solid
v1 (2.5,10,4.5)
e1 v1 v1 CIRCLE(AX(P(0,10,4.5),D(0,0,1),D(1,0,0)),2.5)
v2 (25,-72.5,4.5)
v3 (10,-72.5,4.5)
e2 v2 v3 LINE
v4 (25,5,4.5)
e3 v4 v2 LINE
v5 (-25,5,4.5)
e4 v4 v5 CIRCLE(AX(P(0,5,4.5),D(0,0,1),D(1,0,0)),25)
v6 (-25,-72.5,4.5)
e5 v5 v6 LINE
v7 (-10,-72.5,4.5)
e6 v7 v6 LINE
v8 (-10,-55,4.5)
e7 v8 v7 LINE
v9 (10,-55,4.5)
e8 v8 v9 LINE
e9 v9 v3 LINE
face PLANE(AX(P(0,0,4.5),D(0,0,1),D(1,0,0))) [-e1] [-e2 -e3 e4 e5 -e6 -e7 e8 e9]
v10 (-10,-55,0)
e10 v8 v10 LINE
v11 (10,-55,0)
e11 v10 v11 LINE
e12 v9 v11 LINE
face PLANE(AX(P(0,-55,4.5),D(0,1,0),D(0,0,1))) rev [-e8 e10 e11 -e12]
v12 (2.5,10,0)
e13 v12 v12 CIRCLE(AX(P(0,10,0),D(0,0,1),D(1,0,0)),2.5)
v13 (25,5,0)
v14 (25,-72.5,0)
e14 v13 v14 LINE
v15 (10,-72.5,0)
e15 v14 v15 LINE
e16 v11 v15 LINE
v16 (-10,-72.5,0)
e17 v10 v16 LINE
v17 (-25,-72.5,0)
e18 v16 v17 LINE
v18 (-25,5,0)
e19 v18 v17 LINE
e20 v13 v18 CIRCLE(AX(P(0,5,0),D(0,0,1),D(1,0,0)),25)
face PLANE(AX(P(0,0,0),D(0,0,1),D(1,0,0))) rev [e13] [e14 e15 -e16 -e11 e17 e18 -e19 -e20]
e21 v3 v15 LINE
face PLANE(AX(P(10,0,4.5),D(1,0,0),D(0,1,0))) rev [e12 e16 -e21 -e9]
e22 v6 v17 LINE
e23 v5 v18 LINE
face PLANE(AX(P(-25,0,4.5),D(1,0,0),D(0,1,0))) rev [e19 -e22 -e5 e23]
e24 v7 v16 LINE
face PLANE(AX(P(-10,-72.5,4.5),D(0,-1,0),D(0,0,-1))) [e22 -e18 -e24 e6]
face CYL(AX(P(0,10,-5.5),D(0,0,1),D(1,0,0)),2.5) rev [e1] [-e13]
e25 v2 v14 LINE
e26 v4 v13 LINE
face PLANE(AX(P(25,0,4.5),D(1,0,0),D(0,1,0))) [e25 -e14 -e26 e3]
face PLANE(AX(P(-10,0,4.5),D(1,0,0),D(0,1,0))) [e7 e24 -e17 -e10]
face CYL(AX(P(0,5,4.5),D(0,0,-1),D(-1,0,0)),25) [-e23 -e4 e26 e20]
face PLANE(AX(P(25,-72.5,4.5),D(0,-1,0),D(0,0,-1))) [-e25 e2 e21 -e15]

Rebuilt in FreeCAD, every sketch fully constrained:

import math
import FreeCAD as App
import Part
import Sketcher

V = App.Vector
Q = App.Units.Quantity

doc = App.newDocument("Part")
body = doc.addObject("PartDesign::Body", "Body")

# Sketch on XY plane
sketch1 = doc.addObject("Sketcher::SketchObject", "Sketch")
body.addObject(sketch1)
sketch1.AttachmentSupport = (doc.XY_Plane, [""])
sketch1.MapMode = "FlatFace"
sketch1.addGeometry([
    Part.LineSegment(V(-10, -55, 0), V(10, -55, 0)),  # 0
    Part.LineSegment(V(10, -55, 0), V(10, -72, 0)),  # 1
    Part.LineSegment(V(10, -72, 0), V(25, -72, 0)),  # 2
    Part.LineSegment(V(25, -72, 0), V(25, 5, 0)),  # 3
    Part.ArcOfCircle(Part.Circle(V(0, 5, 0), V(0, 0, 1), 25), math.radians(0), math.radians(180)),  # 4
    Part.LineSegment(V(-25, 5, 0), V(-25, -72, 0)),  # 5
    Part.LineSegment(V(-25, -72, 0), V(-10, -72, 0)),  # 6
    Part.LineSegment(V(-10, -72, 0), V(-10, -55, 0)),  # 7
], False)
sketch1.addConstraint([
    Sketcher.Constraint("Coincident", 0, 2, 1, 1),
    Sketcher.Constraint("Coincident", 1, 2, 2, 1),
    Sketcher.Constraint("Coincident", 2, 2, 3, 1),
    Sketcher.Constraint("Tangent", 3, 2, 4, 1),
    Sketcher.Constraint("Tangent", 4, 2, 5, 1),
    Sketcher.Constraint("Coincident", 5, 2, 6, 1),
    Sketcher.Constraint("Coincident", 6, 2, 7, 1),
    Sketcher.Constraint("Coincident", 7, 2, 0, 1),
    Sketcher.Constraint("Horizontal", 0),
    Sketcher.Constraint("Vertical", 1),
    Sketcher.Constraint("Horizontal", 2),
    Sketcher.Constraint("Vertical", 3),
    Sketcher.Constraint("Vertical", 5),
    Sketcher.Constraint("Horizontal", 6),
    Sketcher.Constraint("Vertical", 7),
    Sketcher.Constraint("Symmetric", 2, 2, 5, 2, -2),
    Sketcher.Constraint("Equal", 2, 6),
    Sketcher.Constraint("Radius", 4, Q("25 mm")),
    Sketcher.Constraint("DistanceX", 0, 1, 0, 2, Q("20 mm")),
    Sketcher.Constraint("DistanceY", 1, 2, 1, 1, Q("17.5 mm")),
    Sketcher.Constraint("DistanceY", 3, 1, 3, 2, Q("77.5 mm")),
    Sketcher.Constraint("DistanceY", -1, 1, 4, 3, Q("5 mm")),
])
pad1 = doc.addObject("PartDesign::Pad", "Pad")
body.addObject(pad1)
pad1.Profile = sketch1
pad1.Length = 4.5

# Sketch on XY plane
sketch2 = doc.addObject("Sketcher::SketchObject", "Sketch001")
body.addObject(sketch2)
sketch2.AttachmentSupport = (doc.XY_Plane, [""])
sketch2.MapMode = "FlatFace"
sketch2.AttachmentOffset = App.Placement(V(0, 0, 4.5), App.Rotation())
sketch2.addGeometry(Part.Circle(V(0, 10, 0), V(0, 0, 1), 2.5), False)
sketch2.addConstraint([
    Sketcher.Constraint("PointOnObject", 0, 3, -2),
    Sketcher.Constraint("Diameter", 0, Q("5 mm")),
    Sketcher.Constraint("DistanceY", -1, 1, 0, 3, Q("10 mm")),
])
pocket1 = doc.addObject("PartDesign::Pocket", "Pocket")
body.addObject(pocket1)
pocket1.Profile = sketch2
pocket1.Length = 10

doc.recompute()
